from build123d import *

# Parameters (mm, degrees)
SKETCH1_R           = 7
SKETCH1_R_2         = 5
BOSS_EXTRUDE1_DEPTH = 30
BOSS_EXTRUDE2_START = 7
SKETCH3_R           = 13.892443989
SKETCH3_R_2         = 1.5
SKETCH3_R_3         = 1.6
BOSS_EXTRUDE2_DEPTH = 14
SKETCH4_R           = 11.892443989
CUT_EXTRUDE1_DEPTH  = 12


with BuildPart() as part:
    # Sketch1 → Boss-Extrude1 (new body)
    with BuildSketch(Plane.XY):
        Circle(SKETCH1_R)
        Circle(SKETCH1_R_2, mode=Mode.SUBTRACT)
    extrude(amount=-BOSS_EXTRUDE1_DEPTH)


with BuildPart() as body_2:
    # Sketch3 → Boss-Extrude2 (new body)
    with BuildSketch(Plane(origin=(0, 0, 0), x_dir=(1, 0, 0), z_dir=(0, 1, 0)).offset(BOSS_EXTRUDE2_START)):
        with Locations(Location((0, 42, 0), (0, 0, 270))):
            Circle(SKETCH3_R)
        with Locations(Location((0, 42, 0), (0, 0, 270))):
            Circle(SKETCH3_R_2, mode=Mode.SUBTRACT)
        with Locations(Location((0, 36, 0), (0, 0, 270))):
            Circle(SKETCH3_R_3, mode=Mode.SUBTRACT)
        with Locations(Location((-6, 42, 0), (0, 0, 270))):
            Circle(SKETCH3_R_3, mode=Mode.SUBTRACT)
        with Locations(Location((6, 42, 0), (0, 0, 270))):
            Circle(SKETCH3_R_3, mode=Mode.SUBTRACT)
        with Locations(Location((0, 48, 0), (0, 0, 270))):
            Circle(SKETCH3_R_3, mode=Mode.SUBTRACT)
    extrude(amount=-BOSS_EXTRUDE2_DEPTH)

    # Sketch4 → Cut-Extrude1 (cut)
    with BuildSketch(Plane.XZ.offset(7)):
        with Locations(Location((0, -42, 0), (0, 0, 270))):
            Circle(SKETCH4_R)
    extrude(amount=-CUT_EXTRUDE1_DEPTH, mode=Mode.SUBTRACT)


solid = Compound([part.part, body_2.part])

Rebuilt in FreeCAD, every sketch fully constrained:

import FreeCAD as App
import Part
import Sketcher
from FreeCAD import Vector

doc = App.newDocument("Part")
body = doc.addObject("PartDesign::Body", "Body")

sketch1 = body.newObject("Sketcher::SketchObject", "Sketch")
sketch1.AttachmentSupport = (doc.getObject("XY_Plane"), [""])
sketch1.MapMode = "FlatFace"
sketch1.addGeometry([
    Part.Circle(Vector(0, 0, 0), Vector(0, 0, 1), 7),
    Part.Circle(Vector(0, 0, 0), Vector(0, 0, 1), 5),
], False)
sketch1.addConstraint([
    Sketcher.Constraint("Coincident", 0, 3, -1, 1),
    Sketcher.Constraint("Coincident", 1, 3, -1, 1),
    Sketcher.Constraint("Diameter", 0, 14.0),
    Sketcher.Constraint("Diameter", 1, 10.0),
])
pad1 = body.newObject("PartDesign::Pad", "Pad")
pad1.Profile = sketch1
pad1.Length = 30
pad1.Reversed = True
body2 = doc.addObject("PartDesign::Body", "Body001")

sketch2 = body2.newObject("Sketcher::SketchObject", "Sketch001")
sketch2.AttachmentSupport = (doc.getObject("XZ_Plane001"), [""])
sketch2.MapMode = "FlatFace"
sketch2.AttachmentOffset = App.Placement(Vector(0, 0, -7), App.Rotation())
sketch2.addGeometry([
    Part.Circle(Vector(0, -42, 0), Vector(0, 0, 1), 13.9),
    Part.Circle(Vector(-6, -42, 0), Vector(0, 0, 1), 1.6),
    Part.Circle(Vector(0, -48, 0), Vector(0, 0, 1), 1.6),
    Part.Circle(Vector(0, -42, 0), Vector(0, 0, 1), 1.5),
    Part.Circle(Vector(6, -42, 0), Vector(0, 0, 1), 1.6),
    Part.Circle(Vector(0, -36, 0), Vector(0, 0, 1), 1.6),
], False)
sketch2.addConstraint([
    Sketcher.Constraint("Coincident", 3, 3, 0, 3),
    Sketcher.Constraint("Equal", 1, 2),
    Sketcher.Constraint("Equal", 2, 4),
    Sketcher.Constraint("Equal", 4, 5),
    Sketcher.Constraint("Symmetric", 1, 3, 4, 3, -2),
    Sketcher.Constraint("PointOnObject", 0, 3, -2),
    Sketcher.Constraint("PointOnObject", 2, 3, -2),
    Sketcher.Constraint("PointOnObject", 5, 3, -2),
    Sketcher.Constraint("Horizontal", 0, 3, 1, 3),
    Sketcher.Constraint("Diameter", 3, 3.0),
    Sketcher.Constraint("Diameter", 1, 3.2),
    Sketcher.Constraint("DistanceY", 0, 3, -1, 1, 42.0),
    Sketcher.Constraint("DistanceX", 1, 3, -1, 1, 6.0),
    Sketcher.Constraint("DistanceY", 2, 3, -1, 1, 48.0),
    Sketcher.Constraint("DistanceY", 5, 3, -1, 1, 36.0),
    Sketcher.Constraint("Diameter", 0, 27.784888),
])
pad2 = body2.newObject("PartDesign::Pad", "Pad001")
pad2.Profile = sketch2
pad2.Length = 14

sketch3 = body2.newObject("Sketcher::SketchObject", "Sketch002")
sketch3.AttachmentSupport = (doc.getObject("XZ_Plane001"), [""])
sketch3.MapMode = "FlatFace"
sketch3.AttachmentOffset = App.Placement(Vector(0, 0, 7), App.Rotation())
sketch3.addGeometry(Part.Circle(Vector(0, -42, 0), Vector(0, 0, 1), 12), False)
sketch3.addConstraint([
    Sketcher.Constraint("PointOnObject", 0, 3, -2),
    Sketcher.Constraint("DistanceY", 0, 3, -1, 1, 42.0),
    Sketcher.Constraint("Diameter", 0, 23.784888),
])
pocket1 = body2.newObject("PartDesign::Pocket", "Pocket")
pocket1.Profile = sketch3
pocket1.Length = 12

doc.recompute()
